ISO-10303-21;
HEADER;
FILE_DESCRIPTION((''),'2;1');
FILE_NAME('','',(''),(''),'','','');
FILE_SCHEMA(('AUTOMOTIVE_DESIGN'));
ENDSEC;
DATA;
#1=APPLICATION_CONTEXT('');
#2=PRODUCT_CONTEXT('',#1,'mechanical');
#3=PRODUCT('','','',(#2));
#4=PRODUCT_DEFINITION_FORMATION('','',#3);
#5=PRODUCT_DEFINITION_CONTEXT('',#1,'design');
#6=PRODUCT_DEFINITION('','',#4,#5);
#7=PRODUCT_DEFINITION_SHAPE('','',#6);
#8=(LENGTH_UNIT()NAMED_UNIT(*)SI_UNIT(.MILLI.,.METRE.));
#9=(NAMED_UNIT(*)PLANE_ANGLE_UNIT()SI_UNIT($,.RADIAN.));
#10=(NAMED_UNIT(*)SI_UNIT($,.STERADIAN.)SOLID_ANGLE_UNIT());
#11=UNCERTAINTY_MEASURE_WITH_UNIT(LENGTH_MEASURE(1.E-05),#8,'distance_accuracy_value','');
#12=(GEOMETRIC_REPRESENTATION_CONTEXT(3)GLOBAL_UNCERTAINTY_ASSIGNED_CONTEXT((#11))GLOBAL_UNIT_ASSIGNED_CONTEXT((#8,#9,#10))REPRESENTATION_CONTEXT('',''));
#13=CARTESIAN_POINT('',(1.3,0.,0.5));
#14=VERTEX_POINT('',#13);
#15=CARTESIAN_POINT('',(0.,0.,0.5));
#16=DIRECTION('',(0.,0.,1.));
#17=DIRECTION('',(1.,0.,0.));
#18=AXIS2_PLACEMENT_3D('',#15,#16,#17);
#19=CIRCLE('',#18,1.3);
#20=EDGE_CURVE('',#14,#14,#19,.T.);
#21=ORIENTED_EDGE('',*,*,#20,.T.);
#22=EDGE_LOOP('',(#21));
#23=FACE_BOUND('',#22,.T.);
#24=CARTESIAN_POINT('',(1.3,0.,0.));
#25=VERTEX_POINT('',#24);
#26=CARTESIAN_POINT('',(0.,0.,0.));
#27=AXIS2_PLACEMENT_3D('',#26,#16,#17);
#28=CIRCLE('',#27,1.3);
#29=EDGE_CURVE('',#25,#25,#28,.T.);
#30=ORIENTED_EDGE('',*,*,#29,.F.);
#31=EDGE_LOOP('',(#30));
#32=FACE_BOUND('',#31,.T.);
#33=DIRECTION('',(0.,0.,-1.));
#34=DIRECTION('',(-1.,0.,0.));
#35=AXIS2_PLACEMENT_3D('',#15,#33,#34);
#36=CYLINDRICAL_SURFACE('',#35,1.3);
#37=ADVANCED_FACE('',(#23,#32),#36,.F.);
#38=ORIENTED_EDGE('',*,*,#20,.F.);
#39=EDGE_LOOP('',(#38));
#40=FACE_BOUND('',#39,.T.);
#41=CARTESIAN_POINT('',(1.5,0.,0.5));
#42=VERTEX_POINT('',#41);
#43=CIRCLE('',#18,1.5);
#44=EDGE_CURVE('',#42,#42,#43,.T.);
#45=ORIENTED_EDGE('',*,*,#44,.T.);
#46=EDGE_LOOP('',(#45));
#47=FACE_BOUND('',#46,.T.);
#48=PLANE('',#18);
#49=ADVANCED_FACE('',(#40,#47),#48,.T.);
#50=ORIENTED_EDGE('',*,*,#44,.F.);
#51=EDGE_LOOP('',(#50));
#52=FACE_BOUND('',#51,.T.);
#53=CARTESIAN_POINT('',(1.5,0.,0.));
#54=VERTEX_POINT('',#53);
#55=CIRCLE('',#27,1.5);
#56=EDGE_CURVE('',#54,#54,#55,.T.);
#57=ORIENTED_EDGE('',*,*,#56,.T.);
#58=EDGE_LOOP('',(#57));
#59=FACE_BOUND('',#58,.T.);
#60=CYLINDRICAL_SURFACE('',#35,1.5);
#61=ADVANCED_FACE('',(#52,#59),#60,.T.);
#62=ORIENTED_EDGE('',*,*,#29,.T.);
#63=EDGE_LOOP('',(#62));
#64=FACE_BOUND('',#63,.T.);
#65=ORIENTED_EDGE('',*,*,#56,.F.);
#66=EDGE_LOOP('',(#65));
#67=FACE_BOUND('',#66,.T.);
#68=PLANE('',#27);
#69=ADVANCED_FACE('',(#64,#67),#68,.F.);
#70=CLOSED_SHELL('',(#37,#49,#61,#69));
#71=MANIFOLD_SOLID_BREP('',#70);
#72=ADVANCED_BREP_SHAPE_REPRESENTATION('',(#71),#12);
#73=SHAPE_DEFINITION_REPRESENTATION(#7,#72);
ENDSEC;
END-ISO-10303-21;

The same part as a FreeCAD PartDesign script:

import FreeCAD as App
import Part
import Sketcher

V = App.Vector

doc = App.newDocument("Part")
body = doc.addObject("PartDesign::Body", "Body")

# Sketch on XY plane
sketch1 = body.newObject("Sketcher::SketchObject", "Sketch")
sketch1.AttachmentSupport = (doc.getObject("XY_Plane"), [""])
sketch1.MapMode = "FlatFace"
sketch1.addGeometry([
    Part.Circle(V(0, 0, 0), V(0, 0, 1), 1.5),
    Part.Circle(V(0, 0, 0), V(0, 0, 1), 1.3),
], False)
sketch1.addConstraint([
    Sketcher.Constraint("Coincident", 0, 3, -1, 1),
    Sketcher.Constraint("Coincident", 1, 3, -1, 1),
    Sketcher.Constraint("Diameter", 0, 3.0),
    Sketcher.Constraint("Diameter", 1, 2.6),
])
pad1 = body.newObject("PartDesign::Pad", "Pad")
pad1.Profile = sketch1
pad1.Length = 0.5

doc.recompute()
